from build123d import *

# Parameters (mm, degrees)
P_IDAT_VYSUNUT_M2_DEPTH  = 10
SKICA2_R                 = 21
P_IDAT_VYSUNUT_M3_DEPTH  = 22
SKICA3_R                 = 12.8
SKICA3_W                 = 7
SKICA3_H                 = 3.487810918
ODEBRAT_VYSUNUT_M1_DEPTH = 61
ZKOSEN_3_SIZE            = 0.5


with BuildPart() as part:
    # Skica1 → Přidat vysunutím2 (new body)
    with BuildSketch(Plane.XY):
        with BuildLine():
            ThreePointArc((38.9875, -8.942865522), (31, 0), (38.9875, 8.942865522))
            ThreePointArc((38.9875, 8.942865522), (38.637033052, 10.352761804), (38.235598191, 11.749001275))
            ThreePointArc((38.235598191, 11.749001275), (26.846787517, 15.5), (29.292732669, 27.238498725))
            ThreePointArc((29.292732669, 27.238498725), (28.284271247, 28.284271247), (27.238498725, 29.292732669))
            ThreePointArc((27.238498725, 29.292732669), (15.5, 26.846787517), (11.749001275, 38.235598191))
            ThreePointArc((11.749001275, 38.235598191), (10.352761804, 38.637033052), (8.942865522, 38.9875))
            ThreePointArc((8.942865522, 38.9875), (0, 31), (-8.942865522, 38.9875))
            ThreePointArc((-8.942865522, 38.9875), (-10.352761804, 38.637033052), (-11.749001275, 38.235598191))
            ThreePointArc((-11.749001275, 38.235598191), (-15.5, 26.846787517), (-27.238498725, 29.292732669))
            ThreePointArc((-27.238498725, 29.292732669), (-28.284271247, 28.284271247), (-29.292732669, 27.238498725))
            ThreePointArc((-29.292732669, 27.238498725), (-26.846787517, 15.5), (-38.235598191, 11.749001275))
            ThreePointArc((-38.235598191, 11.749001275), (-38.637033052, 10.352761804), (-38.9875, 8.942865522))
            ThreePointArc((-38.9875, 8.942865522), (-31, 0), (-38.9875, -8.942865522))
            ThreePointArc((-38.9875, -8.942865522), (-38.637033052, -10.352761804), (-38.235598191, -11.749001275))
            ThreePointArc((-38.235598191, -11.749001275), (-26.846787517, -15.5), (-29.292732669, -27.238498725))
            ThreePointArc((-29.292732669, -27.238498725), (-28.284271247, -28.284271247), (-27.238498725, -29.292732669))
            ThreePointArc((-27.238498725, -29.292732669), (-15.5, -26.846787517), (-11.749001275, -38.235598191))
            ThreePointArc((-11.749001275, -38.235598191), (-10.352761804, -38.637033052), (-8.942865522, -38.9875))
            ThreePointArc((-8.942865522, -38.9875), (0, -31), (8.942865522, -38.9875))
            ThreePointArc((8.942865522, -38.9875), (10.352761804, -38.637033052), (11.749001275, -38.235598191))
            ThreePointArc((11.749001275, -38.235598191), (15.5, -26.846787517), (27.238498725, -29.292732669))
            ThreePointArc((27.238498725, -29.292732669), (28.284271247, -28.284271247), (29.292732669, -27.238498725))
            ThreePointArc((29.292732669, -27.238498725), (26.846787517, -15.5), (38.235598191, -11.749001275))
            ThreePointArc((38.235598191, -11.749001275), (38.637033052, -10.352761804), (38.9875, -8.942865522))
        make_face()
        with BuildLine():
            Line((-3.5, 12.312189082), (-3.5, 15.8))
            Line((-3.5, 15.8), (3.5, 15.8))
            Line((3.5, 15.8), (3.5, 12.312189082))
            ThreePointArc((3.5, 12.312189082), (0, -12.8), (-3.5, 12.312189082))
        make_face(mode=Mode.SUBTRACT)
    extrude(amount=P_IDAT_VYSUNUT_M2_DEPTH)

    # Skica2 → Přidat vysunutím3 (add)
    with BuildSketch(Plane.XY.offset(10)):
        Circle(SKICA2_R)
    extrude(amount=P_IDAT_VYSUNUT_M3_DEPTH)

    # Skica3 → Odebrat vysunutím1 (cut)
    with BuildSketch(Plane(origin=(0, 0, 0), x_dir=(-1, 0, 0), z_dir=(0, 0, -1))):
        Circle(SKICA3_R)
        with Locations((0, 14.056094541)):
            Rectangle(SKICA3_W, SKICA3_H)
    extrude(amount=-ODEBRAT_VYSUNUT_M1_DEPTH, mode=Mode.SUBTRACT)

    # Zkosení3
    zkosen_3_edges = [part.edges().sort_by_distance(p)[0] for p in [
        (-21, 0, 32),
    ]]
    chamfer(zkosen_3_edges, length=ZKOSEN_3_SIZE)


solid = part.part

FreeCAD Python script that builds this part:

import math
import FreeCAD as App
import Part
import Sketcher
Q = App.Units.Quantity


def edges_at(feature, points):
    """Names of the edges that pass closest to the given points."""
    edges = feature.Shape.Edges
    near = lambda p: min(range(len(edges)), key=lambda i: edges[i].distToShape(Part.Vertex(*p))[0])
    return sorted({f"Edge{near(p) + 1}" for p in points})

doc = App.newDocument("Part")
body = doc.addObject("PartDesign::Body", "Body")

sketch1 = body.newObject("Sketcher::SketchObject", "Sketch")
sketch1.AttachmentSupport = (doc.getObject("XY_Plane"), [""])
sketch1.MapMode = "FlatFace"
sketch1.addGeometry(Part.ArcOfCircle(Part.Circle(App.Vector(40, 0, 0), App.Vector(0, 0, 1), 9), math.radians(96.45945), math.radians(263.54055)), False)
sketch1.addGeometry(Part.ArcOfCircle(Part.Circle(App.Vector(0.000001, 0, 0), App.Vector(0, 0, 1), 39.999999), math.radians(12.9189), math.radians(17.0811)), False)
sketch1.addGeometry(Part.ArcOfCircle(Part.Circle(App.Vector(34.641016, 20, 0), App.Vector(0, 0, 1), 9), math.radians(126.45945), math.radians(293.54055)), False)
sketch1.addGeometry(Part.ArcOfCircle(Part.Circle(App.Vector(-0.000001, -0.000001, 0), App.Vector(0, 0, 1), 40.000001), math.radians(42.9189), math.radians(47.0811)), False)
sketch1.addGeometry(Part.ArcOfCircle(Part.Circle(App.Vector(20, 34.641016, 0), App.Vector(0, 0, 1), 9), math.radians(156.45945), math.radians(323.54055)), False)
sketch1.addGeometry(Part.ArcOfCircle(Part.Circle(App.Vector(0, 0.000001, 0), App.Vector(0, 0, 1), 39.999999), math.radians(72.9189), math.radians(77.0811)), False)
sketch1.addGeometry(Part.ArcOfCircle(Part.Circle(App.Vector(0, 40, 0), App.Vector(0, 0, 1), 9), math.radians(-173.54055), math.radians(-6.45945)), False)
sketch1.addGeometry(Part.ArcOfCircle(Part.Circle(App.Vector(0, 0.000001, 0), App.Vector(0, 0, 1), 39.999999), math.radians(102.9189), math.radians(107.0811)), False)
sketch1.addGeometry(Part.ArcOfCircle(Part.Circle(App.Vector(-20, 34.641016, 0), App.Vector(0, 0, 1), 9), math.radians(-143.54055), math.radians(23.54055)), False)
sketch1.addGeometry(Part.ArcOfCircle(Part.Circle(App.Vector(0.000001, -0.000001, 0), App.Vector(0, 0, 1), 40.000001), math.radians(132.9189), math.radians(137.0811)), False)
sketch1.addGeometry(Part.ArcOfCircle(Part.Circle(App.Vector(-34.641016, 20, 0), App.Vector(0, 0, 1), 9), math.radians(-113.54055), math.radians(53.54055)), False)
sketch1.addGeometry(Part.ArcOfCircle(Part.Circle(App.Vector(-0.000001, 0, 0), App.Vector(0, 0, 1), 39.999999), math.radians(162.9189), math.radians(167.0811)), False)
sketch1.addGeometry(Part.ArcOfCircle(Part.Circle(App.Vector(-40, 0, 0), App.Vector(0, 0, 1), 9), math.radians(-83.54055), math.radians(83.54055)), False)
sketch1.addGeometry(Part.ArcOfCircle(Part.Circle(App.Vector(-0.000001, 0, 0), App.Vector(0, 0, 1), 39.999999), math.radians(-167.0811), math.radians(-162.9189)), False)
sketch1.addGeometry(Part.ArcOfCircle(Part.Circle(App.Vector(-34.641016, -20, 0), App.Vector(0, 0, 1), 9), math.radians(-53.54055), math.radians(113.54055)), False)
sketch1.addGeometry(Part.ArcOfCircle(Part.Circle(App.Vector(0.000001, 0.000001, 0), App.Vector(0, 0, 1), 40.000001), math.radians(-137.0811), math.radians(-132.9189)), False)
sketch1.addGeometry(Part.ArcOfCircle(Part.Circle(App.Vector(-20, -34.641016, 0), App.Vector(0, 0, 1), 9), math.radians(-23.54055), math.radians(143.54055)), False)
sketch1.addGeometry(Part.ArcOfCircle(Part.Circle(App.Vector(0, -0.000001, 0), App.Vector(0, 0, 1), 39.999999), math.radians(-107.0811), math.radians(-102.9189)), False)
sketch1.addGeometry(Part.ArcOfCircle(Part.Circle(App.Vector(0, -40, 0), App.Vector(0, 0, 1), 9), math.radians(6.45945), math.radians(173.54055)), False)
sketch1.addGeometry(Part.ArcOfCircle(Part.Circle(App.Vector(0, -0.000001, 0), App.Vector(0, 0, 1), 39.999999), math.radians(-77.0811), math.radians(-72.9189)), False)
sketch1.addGeometry(Part.ArcOfCircle(Part.Circle(App.Vector(20, -34.641016, 0), App.Vector(0, 0, 1), 9), math.radians(36.45945), math.radians(203.54055)), False)
sketch1.addGeometry(Part.ArcOfCircle(Part.Circle(App.Vector(-0.000001, 0.000001, 0), App.Vector(0, 0, 1), 40.000001), math.radians(-47.0811), math.radians(-42.9189)), False)
sketch1.addGeometry(Part.ArcOfCircle(Part.Circle(App.Vector(34.641016, -20, 0), App.Vector(0, 0, 1), 9), math.radians(66.45945), math.radians(233.54055)), False)
sketch1.addGeometry(Part.ArcOfCircle(Part.Circle(App.Vector(0.000001, 0, 0), App.Vector(0, 0, 1), 39.999999), math.radians(-17.0811), math.radians(-12.9189)), False)
sketch1.addGeometry(Part.ArcOfCircle(Part.Circle(App.Vector(0, 0, 0), App.Vector(0, 0, 1), 12.8), math.radians(105.868921), math.radians(434.131079)), False)
sketch1.addGeometry(Part.LineSegment(App.Vector(-3.5, 12.312189, 0), App.Vector(-3.5, 15.8, 0)), False)
sketch1.addGeometry(Part.LineSegment(App.Vector(-3.5, 15.8, 0), App.Vector(3.5, 15.8, 0)), False)
sketch1.addGeometry(Part.LineSegment(App.Vector(3.5, 15.8, 0), App.Vector(3.5, 12.312189, 0)), False)
sketch1.addConstraint(Sketcher.Constraint("Coincident", 0, 1, 1, 1))
sketch1.addConstraint(Sketcher.Constraint("Coincident", 1, 2, 2, 2))
sketch1.addConstraint(Sketcher.Constraint("Coincident", 2, 1, 3, 1))
sketch1.addConstraint(Sketcher.Constraint("Coincident", 3, 2, 4, 2))
sketch1.addConstraint(Sketcher.Constraint("Coincident", 4, 1, 5, 1))
sketch1.addConstraint(Sketcher.Constraint("Coincident", 5, 2, 6, 2))
sketch1.addConstraint(Sketcher.Constraint("Coincident", 6, 1, 7, 1))
sketch1.addConstraint(Sketcher.Constraint("Coincident", 7, 2, 8, 2))
sketch1.addConstraint(Sketcher.Constraint("Coincident", 8, 1, 9, 1))
sketch1.addConstraint(Sketcher.Constraint("Coincident", 9, 2, 10, 2))
sketch1.addConstraint(Sketcher.Constraint("Coincident", 10, 1, 11, 1))
sketch1.addConstraint(Sketcher.Constraint("Coincident", 11, 2, 12, 2))
sketch1.addConstraint(Sketcher.Constraint("Coincident", 12, 1, 13, 1))
sketch1.addConstraint(Sketcher.Constraint("Coincident", 13, 2, 14, 2))
sketch1.addConstraint(Sketcher.Constraint("Coincident", 14, 1, 15, 1))
sketch1.addConstraint(Sketcher.Constraint("Coincident", 15, 2, 16, 2))
sketch1.addConstraint(Sketcher.Constraint("Coincident", 16, 1, 17, 1))
sketch1.addConstraint(Sketcher.Constraint("Coincident", 17, 2, 18, 2))
sketch1.addConstraint(Sketcher.Constraint("Coincident", 18, 1, 19, 1))
sketch1.addConstraint(Sketcher.Constraint("Coincident", 19, 2, 20, 2))
sketch1.addConstraint(Sketcher.Constraint("Coincident", 20, 1, 21, 1))
sketch1.addConstraint(Sketcher.Constraint("Coincident", 21, 2, 22, 2))
sketch1.addConstraint(Sketcher.Constraint("Coincident", 22, 1, 23, 1))
sketch1.addConstraint(Sketcher.Constraint("Coincident", 23, 2, 0, 2))
sketch1.addConstraint(Sketcher.Constraint("Coincident", 24, 1, 25, 1))
sketch1.addConstraint(Sketcher.Constraint("Coincident", 25, 2, 26, 1))
sketch1.addConstraint(Sketcher.Constraint("Coincident", 26, 2, 27, 1))
sketch1.addConstraint(Sketcher.Constraint("Coincident", 27, 2, 24, 2))
sketch1.addConstraint(Sketcher.Constraint("Vertical", 25))
sketch1.addConstraint(Sketcher.Constraint("Horizontal", 26))
sketch1.addConstraint(Sketcher.Constraint("Vertical", 27))
sketch1.addConstraint(Sketcher.Constraint("Coincident", 1, 3, -1, 1))
sketch1.addConstraint(Sketcher.Constraint("Coincident", 3, 3, -1, 1))
sketch1.addConstraint(Sketcher.Constraint("Coincident", 5, 3, -1, 1))
sketch1.addConstraint(Sketcher.Constraint("Coincident", 7, 3, -1, 1))
sketch1.addConstraint(Sketcher.Constraint("Coincident", 9, 3, -1, 1))
sketch1.addConstraint(Sketcher.Constraint("Coincident", 11, 3, -1, 1))
sketch1.addConstraint(Sketcher.Constraint("Coincident", 13, 3, -1, 1))
sketch1.addConstraint(Sketcher.Constraint("Coincident", 15, 3, -1, 1))
sketch1.addConstraint(Sketcher.Constraint("Coincident", 17, 3, -1, 1))
sketch1.addConstraint(Sketcher.Constraint("Coincident", 19, 3, -1, 1))
sketch1.addConstraint(Sketcher.Constraint("Coincident", 21, 3, -1, 1))
sketch1.addConstraint(Sketcher.Constraint("Coincident", 23, 3, -1, 1))
sketch1.addConstraint(Sketcher.Constraint("Coincident", 24, 3, -1, 1))
sketch1.addConstraint(Sketcher.Constraint("Equal", 0, 2))
sketch1.addConstraint(Sketcher.Constraint("Equal", 1, 3))
sketch1.addConstraint(Sketcher.Constraint("Equal", 2, 4))
sketch1.addConstraint(Sketcher.Constraint("Equal", 3, 5))
sketch1.addConstraint(Sketcher.Constraint("Equal", 4, 6))
sketch1.addConstraint(Sketcher.Constraint("Equal", 5, 7))
sketch1.addConstraint(Sketcher.Constraint("Equal", 6, 8))
sketch1.addConstraint(Sketcher.Constraint("Equal", 7, 9))
sketch1.addConstraint(Sketcher.Constraint("Equal", 8, 10))
sketch1.addConstraint(Sketcher.Constraint("Equal", 9, 11))
sketch1.addConstraint(Sketcher.Constraint("Equal", 10, 12))
sketch1.addConstraint(Sketcher.Constraint("Equal", 11, 13))
sketch1.addConstraint(Sketcher.Constraint("Equal", 12, 14))
sketch1.addConstraint(Sketcher.Constraint("Equal", 13, 15))
sketch1.addConstraint(Sketcher.Constraint("Equal", 14, 16))
sketch1.addConstraint(Sketcher.Constraint("Equal", 15, 17))
sketch1.addConstraint(Sketcher.Constraint("Equal", 16, 18))
sketch1.addConstraint(Sketcher.Constraint("Equal", 17, 19))
sketch1.addConstraint(Sketcher.Constraint("Equal", 18, 20))
sketch1.addConstraint(Sketcher.Constraint("Equal", 19, 21))
sketch1.addConstraint(Sketcher.Constraint("Equal", 20, 22))
sketch1.addConstraint(Sketcher.Constraint("Equal", 21, 23))
sketch1.addConstraint(Sketcher.Constraint("Symmetric", 0, 3, 12, 3, -1, 1))
sketch1.addConstraint(Sketcher.Constraint("Symmetric", 2, 3, 14, 3, -1, 1))
sketch1.addConstraint(Sketcher.Constraint("Symmetric", 4, 3, 16, 3, -1, 1))
sketch1.addConstraint(Sketcher.Constraint("Symmetric", 6, 3, 18, 3, -1, 1))
sketch1.addConstraint(Sketcher.Constraint("Symmetric", 8, 3, 20, 3, -1, 1))
sketch1.addConstraint(Sketcher.Constraint("Symmetric", 10, 3, 22, 3, -1, 1))
sketch1.addConstraint(Sketcher.Constraint("Symmetric", 4, 3, 8, 3, -2))
sketch1.addConstraint(Sketcher.Constraint("Symmetric", 2, 3, 10, 3, -2))
sketch1.addConstraint(Sketcher.Constraint("PointOnObject", 0, 3, -1))
sketch1.addConstraint(Sketcher.Constraint("PointOnObject", 6, 3, -2))
sketch1.addConstraint(Sketcher.Constraint("Horizontal", 24, 1, 27, 2))
sketch1.addConstraint(Sketcher.Constraint("Radius", 0, Q("9 mm")))
sketch1.addConstraint(Sketcher.Constraint("Radius", 1, Q("39.999999 mm")))
sketch1.addConstraint(Sketcher.Constraint("Radius", 24, Q("12.8 mm")))
sketch1.addConstraint(Sketcher.Constraint("DistanceX", 26, 1, 26, 2, Q("7 mm")))
sketch1.addConstraint(Sketcher.Constraint("DistanceX", -1, 1, 0, 3, Q("40 mm")))
sketch1.addConstraint(Sketcher.Constraint("DistanceY", -1, 1, 2, 3, Q("20 mm")))
sketch1.addConstraint(Sketcher.Constraint("DistanceX", -1, 1, 4, 3, Q("20 mm")))
sketch1.addConstraint(Sketcher.Constraint("DistanceY", -1, 1, 6, 3, Q("40 mm")))
sketch1.addConstraint(Sketcher.Constraint("DistanceY", -1, 1, 25, 2, Q("15.8 mm")))
sketch1.addConstraint(Sketcher.Constraint("DistanceY", -1, 1, 1, 2, Q("11.749001 mm")))
sketch1.addConstraint(Sketcher.Constraint("DistanceX", -1, 1, 4, 1, Q("11.749001 mm")))
pad1 = body.newObject("PartDesign::Pad", "Pad")
pad1.Profile = sketch1
pad1.Length = 10

sketch2 = body.newObject("Sketcher::SketchObject", "Sketch001")
sketch2.AttachmentSupport = (doc.getObject("XY_Plane"), [""])
sketch2.MapMode = "FlatFace"
sketch2.AttachmentOffset = App.Placement(App.Vector(0, 0, 10), App.Rotation())
sketch2.addGeometry(Part.Circle(App.Vector(0, 0, 0), App.Vector(0, 0, 1), 21), False)
sketch2.addConstraint(Sketcher.Constraint("Coincident", 0, 3, -1, 1))
sketch2.addConstraint(Sketcher.Constraint("Diameter", 0, Q("42 mm")))
pad2 = body.newObject("PartDesign::Pad", "Pad001")
pad2.Profile = sketch2
pad2.Length = 22

sketch3 = body.newObject("Sketcher::SketchObject", "Sketch002")
sketch3.AttachmentSupport = (doc.getObject("XY_Plane"), [""])
sketch3.MapMode = "FlatFace"
sketch3.addGeometry(Part.ArcOfCircle(Part.Circle(App.Vector(0, 0, 0), App.Vector(0, 0, 1), 12.8), math.radians(105.868921), math.radians(434.131079)), False)
sketch3.addGeometry(Part.LineSegment(App.Vector(-3.5, 12.312189, 0), App.Vector(-3.5, 15.8, 0)), False)
sketch3.addGeometry(Part.LineSegment(App.Vector(-3.5, 15.8, 0), App.Vector(3.5, 15.8, 0)), False)
sketch3.addGeometry(Part.LineSegment(App.Vector(3.5, 15.8, 0), App.Vector(3.5, 12.312189, 0)), False)
sketch3.addConstraint(Sketcher.Constraint("Coincident", 0, 1, 1, 1))
sketch3.addConstraint(Sketcher.Constraint("Coincident", 1, 2, 2, 1))
sketch3.addConstraint(Sketcher.Constraint("Coincident", 2, 2, 3, 1))
sketch3.addConstraint(Sketcher.Constraint("Coincident", 3, 2, 0, 2))
sketch3.addConstraint(Sketcher.Constraint("Vertical", 1))
sketch3.addConstraint(Sketcher.Constraint("Horizontal", 2))
sketch3.addConstraint(Sketcher.Constraint("Vertical", 3))
sketch3.addConstraint(Sketcher.Constraint("Coincident", 0, 3, -1, 1))
sketch3.addConstraint(Sketcher.Constraint("Horizontal", 0, 1, 3, 2))
sketch3.addConstraint(Sketcher.Constraint("Radius", 0, Q("12.8 mm")))
sketch3.addConstraint(Sketcher.Constraint("DistanceX", 2, 1, 2, 2, Q("7 mm")))
sketch3.addConstraint(Sketcher.Constraint("DistanceY", -1, 1, 1, 2, Q("15.8 mm")))
pocket1 = body.newObject("PartDesign::Pocket", "Pocket")
pocket1.Profile = sketch3
pocket1.Length = 61
pocket1.Reversed = True
doc.recompute()

chamfer = body.newObject("PartDesign::Chamfer", "Chamfer")
chamfer.Base = (pocket1, edges_at(pocket1, [(-21, 0, 32)]))
chamfer.Size = 0.5

doc.recompute()
